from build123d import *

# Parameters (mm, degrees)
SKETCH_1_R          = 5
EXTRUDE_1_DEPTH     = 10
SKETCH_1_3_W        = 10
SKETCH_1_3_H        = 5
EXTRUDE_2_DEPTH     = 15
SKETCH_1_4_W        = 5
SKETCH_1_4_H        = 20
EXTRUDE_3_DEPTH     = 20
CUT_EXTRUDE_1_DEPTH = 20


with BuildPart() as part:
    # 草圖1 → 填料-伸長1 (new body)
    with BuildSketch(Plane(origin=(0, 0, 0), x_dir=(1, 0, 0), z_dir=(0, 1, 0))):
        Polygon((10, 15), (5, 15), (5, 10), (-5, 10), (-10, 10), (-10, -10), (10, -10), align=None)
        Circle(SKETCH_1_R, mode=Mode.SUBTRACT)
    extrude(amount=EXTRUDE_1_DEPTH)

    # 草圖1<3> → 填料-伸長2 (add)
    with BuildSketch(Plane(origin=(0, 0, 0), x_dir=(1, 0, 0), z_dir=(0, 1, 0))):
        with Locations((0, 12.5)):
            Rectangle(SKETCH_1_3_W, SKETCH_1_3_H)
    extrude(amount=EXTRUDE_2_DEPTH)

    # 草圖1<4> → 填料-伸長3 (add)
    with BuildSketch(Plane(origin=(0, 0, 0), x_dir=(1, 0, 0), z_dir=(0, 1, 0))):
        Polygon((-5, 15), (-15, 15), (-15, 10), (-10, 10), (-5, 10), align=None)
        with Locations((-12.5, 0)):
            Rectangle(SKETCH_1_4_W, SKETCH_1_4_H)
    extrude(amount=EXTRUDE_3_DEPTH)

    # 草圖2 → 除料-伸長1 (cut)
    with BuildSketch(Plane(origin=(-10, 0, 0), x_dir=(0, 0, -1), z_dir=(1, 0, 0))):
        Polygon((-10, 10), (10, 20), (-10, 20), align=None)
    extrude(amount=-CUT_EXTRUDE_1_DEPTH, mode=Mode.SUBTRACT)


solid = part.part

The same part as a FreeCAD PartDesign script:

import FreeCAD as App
import Part
import Sketcher

doc = App.newDocument("Part")
params = doc.addObject("Spreadsheet::Sheet", "Params")
for row, (alias, value) in enumerate([
    ("sketch1_diameter", "10 mm"),
    ("sketch1_width", "5 mm"),
    ("sketch1_width2", "15 mm"),
    ("pad1_length", "10 mm"),
    ("sketch2_width", "10 mm"),
    ("sketch2_height", "5 mm"),
    ("pad2_length", "15 mm"),
    ("sketch3_width", "10 mm"),
    ("sketch3_height", "25 mm"),
    ("pad3_length", "20 mm"),
    ("sketch4_width", "10 mm"),
    ("sketch4_height", "20 mm"),
    ("pocket1_length", "20 mm"),
], start=1):
    params.set(f"A{row}", alias)
    params.set(f"B{row}", "=" + value)
    params.setAlias(f"B{row}", alias)

body = doc.addObject("PartDesign::Body", "Body")

sketch1 = body.newObject("Sketcher::SketchObject", "Sketch")
sketch1.AttachmentSupport = (doc.getObject("XZ_Plane"), [""])
sketch1.MapMode = "FlatFace"
sketch1.addGeometry(Part.LineSegment(App.Vector(10, -15, 0), App.Vector(5, -15, 0)), False)
sketch1.addGeometry(Part.LineSegment(App.Vector(5, -15, 0), App.Vector(5, -10, 0)), False)
sketch1.addGeometry(Part.LineSegment(App.Vector(5, -10, 0), App.Vector(-10, -10, 0)), False)
sketch1.addGeometry(Part.LineSegment(App.Vector(-10, -10, 0), App.Vector(-10, 10, 0)), False)
sketch1.addGeometry(Part.LineSegment(App.Vector(-10, 10, 0), App.Vector(10, 10, 0)), False)
sketch1.addGeometry(Part.LineSegment(App.Vector(10, 10, 0), App.Vector(10, -15, 0)), False)
sketch1.addGeometry(Part.Circle(App.Vector(0, 0, 0), App.Vector(0, 0, 1), 5), False)
sketch1.addConstraint(Sketcher.Constraint("Coincident", 0, 2, 1, 1))
sketch1.addConstraint(Sketcher.Constraint("Coincident", 1, 2, 2, 1))
sketch1.addConstraint(Sketcher.Constraint("Coincident", 2, 2, 3, 1))
sketch1.addConstraint(Sketcher.Constraint("Coincident", 3, 2, 4, 1))
sketch1.addConstraint(Sketcher.Constraint("Coincident", 4, 2, 5, 1))
sketch1.addConstraint(Sketcher.Constraint("Coincident", 5, 2, 0, 1))
sketch1.addConstraint(Sketcher.Constraint("Horizontal", 0))
sketch1.addConstraint(Sketcher.Constraint("Vertical", 1))
sketch1.addConstraint(Sketcher.Constraint("Horizontal", 2))
sketch1.addConstraint(Sketcher.Constraint("Vertical", 3))
sketch1.addConstraint(Sketcher.Constraint("Horizontal", 4))
sketch1.addConstraint(Sketcher.Constraint("Vertical", 5))
sketch1.addConstraint(Sketcher.Constraint("Coincident", 6, 3, -1, 1))
sketch1.addConstraint(Sketcher.Constraint("Symmetric", 2, 2, 4, 2, -1, 1))
sketch1.addConstraint(Sketcher.Constraint("Equal", 0, 1))
sketch1.addConstraint(Sketcher.Constraint("Equal", 4, 3))
sketch1.addConstraint(Sketcher.Constraint("Diameter", 6, 10.0))
sketch1.addConstraint(Sketcher.Constraint("DistanceX", 0, 2, 0, 1, 5.0))
sketch1.addConstraint(Sketcher.Constraint("DistanceX", 2, 2, 2, 1, 15.0))
sketch1.setExpression("Constraints[16]", "Params.sketch1_diameter")
sketch1.setExpression("Constraints[17]", "Params.sketch1_width")
sketch1.setExpression("Constraints[18]", "Params.sketch1_width2")
pad1 = body.newObject("PartDesign::Pad", "Pad")
pad1.Profile = sketch1
pad1.setExpression("Length", "Params.pad1_length")
pad1.Reversed = True

sketch2 = body.newObject("Sketcher::SketchObject", "Sketch001")
sketch2.AttachmentSupport = (doc.getObject("XZ_Plane"), [""])
sketch2.MapMode = "FlatFace"
sketch2.addGeometry(Part.LineSegment(App.Vector(-5, -15, 0), App.Vector(-5, -10, 0)), False)
sketch2.addGeometry(Part.LineSegment(App.Vector(-5, -10, 0), App.Vector(5, -10, 0)), False)
sketch2.addGeometry(Part.LineSegment(App.Vector(5, -10, 0), App.Vector(5, -15, 0)), False)
sketch2.addGeometry(Part.LineSegment(App.Vector(5, -15, 0), App.Vector(-5, -15, 0)), False)
sketch2.addConstraint(Sketcher.Constraint("Coincident", 0, 2, 1, 1))
sketch2.addConstraint(Sketcher.Constraint("Coincident", 1, 2, 2, 1))
sketch2.addConstraint(Sketcher.Constraint("Coincident", 2, 2, 3, 1))
sketch2.addConstraint(Sketcher.Constraint("Coincident", 3, 2, 0, 1))
sketch2.addConstraint(Sketcher.Constraint("Vertical", 0))
sketch2.addConstraint(Sketcher.Constraint("Horizontal", 1))
sketch2.addConstraint(Sketcher.Constraint("Vertical", 2))
sketch2.addConstraint(Sketcher.Constraint("Horizontal", 3))
sketch2.addConstraint(Sketcher.Constraint("DistanceX", 1, 1, 1, 2, 10.0))
sketch2.addConstraint(Sketcher.Constraint("DistanceY", 0, 1, 0, 2, 5.0))
sketch2.addConstraint(Sketcher.Constraint("DistanceX", 0, 2, -1, 1, 5.0))
sketch2.addConstraint(Sketcher.Constraint("DistanceY", 0, 2, -1, 1, 10.0))
sketch2.setExpression("Constraints[8]", "Params.sketch2_width")
sketch2.setExpression("Constraints[9]", "Params.sketch2_height")
pad2 = body.newObject("PartDesign::Pad", "Pad001")
pad2.Profile = sketch2
pad2.setExpression("Length", "Params.pad2_length")
pad2.Reversed = True

sketch3 = body.newObject("Sketcher::SketchObject", "Sketch002")
sketch3.AttachmentSupport = (doc.getObject("XZ_Plane"), [""])
sketch3.MapMode = "FlatFace"
sketch3.addGeometry(Part.LineSegment(App.Vector(-5, -15, 0), App.Vector(-15, -15, 0)), False)
sketch3.addGeometry(Part.LineSegment(App.Vector(-15, -15, 0), App.Vector(-15, 10, 0)), False)
sketch3.addGeometry(Part.LineSegment(App.Vector(-15, 10, 0), App.Vector(-10, 10, 0)), False)
sketch3.addGeometry(Part.LineSegment(App.Vector(-10, 10, 0), App.Vector(-10, -10, 0)), False)
sketch3.addGeometry(Part.LineSegment(App.Vector(-10, -10, 0), App.Vector(-5, -10, 0)), False)
sketch3.addGeometry(Part.LineSegment(App.Vector(-5, -10, 0), App.Vector(-5, -15, 0)), False)
sketch3.addConstraint(Sketcher.Constraint("Coincident", 0, 2, 1, 1))
sketch3.addConstraint(Sketcher.Constraint("Coincident", 1, 2, 2, 1))
sketch3.addConstraint(Sketcher.Constraint("Coincident", 2, 2, 3, 1))
sketch3.addConstraint(Sketcher.Constraint("Coincident", 3, 2, 4, 1))
sketch3.addConstraint(Sketcher.Constraint("Coincident", 4, 2, 5, 1))
sketch3.addConstraint(Sketcher.Constraint("Coincident", 5, 2, 0, 1))
sketch3.addConstraint(Sketcher.Constraint("Horizontal", 0))
sketch3.addConstraint(Sketcher.Constraint("Vertical", 1))
sketch3.addConstraint(Sketcher.Constraint("Horizontal", 2))
sketch3.addConstraint(Sketcher.Constraint("Vertical", 3))
sketch3.addConstraint(Sketcher.Constraint("Horizontal", 4))
sketch3.addConstraint(Sketcher.Constraint("Vertical", 5))
sketch3.addConstraint(Sketcher.Constraint("Equal", 2, 4))
sketch3.addConstraint(Sketcher.Constraint("Equal", 4, 5))
sketch3.addConstraint(Sketcher.Constraint("DistanceX", 0, 2, 0, 1, 10.0))
sketch3.addConstraint(Sketcher.Constraint("DistanceY", 1, 1, 1, 2, 25.0))
sketch3.addConstraint(Sketcher.Constraint("DistanceX", 0, 2, -1, 1, 15.0))
sketch3.addConstraint(Sketcher.Constraint("DistanceY", 0, 2, -1, 1, 15.0))
sketch3.setExpression("Constraints[14]", "Params.sketch3_width")
sketch3.setExpression("Constraints[15]", "Params.sketch3_height")
pad3 = body.newObject("PartDesign::Pad", "Pad002")
pad3.Profile = sketch3
pad3.setExpression("Length", "Params.pad3_length")
pad3.Reversed = True

sketch4 = body.newObject("Sketcher::SketchObject", "Sketch003")
sketch4.AttachmentSupport = (doc.getObject("YZ_Plane"), [""])
sketch4.MapMode = "FlatFace"
sketch4.AttachmentOffset = App.Placement(App.Vector(0, 0, -10), App.Rotation())
sketch4.addGeometry(Part.LineSegment(App.Vector(10, 10, 0), App.Vector(20, -10, 0)), False)
sketch4.addGeometry(Part.LineSegment(App.Vector(20, -10, 0), App.Vector(20, 10, 0)), False)
sketch4.addGeometry(Part.LineSegment(App.Vector(20, 10, 0), App.Vector(10, 10, 0)), False)
sketch4.addConstraint(Sketcher.Constraint("Coincident", 0, 2, 1, 1))
sketch4.addConstraint(Sketcher.Constraint("Coincident", 1, 2, 2, 1))
sketch4.addConstraint(Sketcher.Constraint("Coincident", 2, 2, 0, 1))
sketch4.addConstraint(Sketcher.Constraint("Vertical", 1))
sketch4.addConstraint(Sketcher.Constraint("Horizontal", 2))
sketch4.addConstraint(Sketcher.Constraint("DistanceX", 2, 2, 2, 1, 10.0))
sketch4.addConstraint(Sketcher.Constraint("DistanceY", 1, 1, 1, 2, 20.0))
sketch4.addConstraint(Sketcher.Constraint("DistanceX", -1, 1, 0, 2, 20.0))
sketch4.addConstraint(Sketcher.Constraint("DistanceY", 0, 2, -1, 1, 10.0))
sketch4.setExpression("Constraints[5]", "Params.sketch4_width")
sketch4.setExpression("Constraints[6]", "Params.sketch4_height")
pocket1 = body.newObject("PartDesign::Pocket", "Pocket")
pocket1.Profile = sketch4
pocket1.setExpression("Length", "Params.pocket1_length")

doc.recompute()
